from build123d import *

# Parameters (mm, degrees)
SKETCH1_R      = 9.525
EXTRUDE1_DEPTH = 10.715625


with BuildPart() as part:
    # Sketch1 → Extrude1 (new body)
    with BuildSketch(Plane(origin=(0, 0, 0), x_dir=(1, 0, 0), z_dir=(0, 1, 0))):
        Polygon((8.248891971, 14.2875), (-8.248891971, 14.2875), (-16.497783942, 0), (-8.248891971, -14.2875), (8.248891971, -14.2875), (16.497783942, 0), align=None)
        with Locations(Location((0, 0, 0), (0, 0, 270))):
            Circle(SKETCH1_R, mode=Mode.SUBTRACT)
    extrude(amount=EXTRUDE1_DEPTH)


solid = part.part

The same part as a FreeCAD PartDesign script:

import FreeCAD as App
import Part
import Sketcher
from FreeCAD import Vector
Q = App.Units.Quantity

doc = App.newDocument("Part")
body = doc.addObject("PartDesign::Body", "Body")

# Sketch on XZ plane
sketch1 = body.newObject("Sketcher::SketchObject", "Sketch")
sketch1.AttachmentSupport = (doc.getObject("XZ_Plane"), [""])
sketch1.MapMode = "FlatFace"
sketch1.addGeometry(Part.LineSegment(Vector(8, -14, 0), Vector(-8, -14, 0)), False)
sketch1.addGeometry(Part.LineSegment(Vector(-8, -14, 0), Vector(-16, 0, 0)), False)
sketch1.addGeometry(Part.LineSegment(Vector(-16, 0, 0), Vector(-8, 14, 0)), False)
sketch1.addGeometry(Part.LineSegment(Vector(-8, 14, 0), Vector(8, 14, 0)), False)
sketch1.addGeometry(Part.LineSegment(Vector(8, 14, 0), Vector(16, 0, 0)), False)
sketch1.addGeometry(Part.LineSegment(Vector(16, 0, 0), Vector(8, -14, 0)), False)
sketch1.addGeometry(Part.Circle(Vector(0, 0, 0), Vector(0, 0, 1), 10), False)
sketch1.addConstraint(Sketcher.Constraint("Coincident", 0, 2, 1, 1))
sketch1.addConstraint(Sketcher.Constraint("Coincident", 1, 2, 2, 1))
sketch1.addConstraint(Sketcher.Constraint("Coincident", 2, 2, 3, 1))
sketch1.addConstraint(Sketcher.Constraint("Coincident", 3, 2, 4, 1))
sketch1.addConstraint(Sketcher.Constraint("Coincident", 4, 2, 5, 1))
sketch1.addConstraint(Sketcher.Constraint("Coincident", 5, 2, 0, 1))
sketch1.addConstraint(Sketcher.Constraint("Horizontal", 0))
sketch1.addConstraint(Sketcher.Constraint("Horizontal", 3))
sketch1.addConstraint(Sketcher.Constraint("Coincident", 6, 3, -1, 1))
sketch1.addConstraint(Sketcher.Constraint("Symmetric", 0, 2, 3, 2, -1, 1))
sketch1.addConstraint(Sketcher.Constraint("Symmetric", 1, 2, 4, 2, -1, 1))
sketch1.addConstraint(Sketcher.Constraint("PointOnObject", 1, 2, -1))
sketch1.addConstraint(Sketcher.Constraint("Parallel", 2, 5))
sketch1.addConstraint(Sketcher.Constraint("Vertical", 0, 2, 2, 2))
sketch1.addConstraint(Sketcher.Constraint("Diameter", 6, Q("0.75 in")))
sketch1.addConstraint(Sketcher.Constraint("Angle", 1, Q("120 deg")))
sketch1.addConstraint(Sketcher.Constraint("DistanceY", 0, 2, -1, 1, Q("0.5625 in")))
sketch1.addConstraint(Sketcher.Constraint("DistanceX", 0, 2, 0, 1, Q("16.497784 mm")))
pad1 = body.newObject("PartDesign::Pad", "Pad")
pad1.Profile = sketch1
pad1.Length = Q("0.421875 in")
pad1.Reversed = True

doc.recompute()
